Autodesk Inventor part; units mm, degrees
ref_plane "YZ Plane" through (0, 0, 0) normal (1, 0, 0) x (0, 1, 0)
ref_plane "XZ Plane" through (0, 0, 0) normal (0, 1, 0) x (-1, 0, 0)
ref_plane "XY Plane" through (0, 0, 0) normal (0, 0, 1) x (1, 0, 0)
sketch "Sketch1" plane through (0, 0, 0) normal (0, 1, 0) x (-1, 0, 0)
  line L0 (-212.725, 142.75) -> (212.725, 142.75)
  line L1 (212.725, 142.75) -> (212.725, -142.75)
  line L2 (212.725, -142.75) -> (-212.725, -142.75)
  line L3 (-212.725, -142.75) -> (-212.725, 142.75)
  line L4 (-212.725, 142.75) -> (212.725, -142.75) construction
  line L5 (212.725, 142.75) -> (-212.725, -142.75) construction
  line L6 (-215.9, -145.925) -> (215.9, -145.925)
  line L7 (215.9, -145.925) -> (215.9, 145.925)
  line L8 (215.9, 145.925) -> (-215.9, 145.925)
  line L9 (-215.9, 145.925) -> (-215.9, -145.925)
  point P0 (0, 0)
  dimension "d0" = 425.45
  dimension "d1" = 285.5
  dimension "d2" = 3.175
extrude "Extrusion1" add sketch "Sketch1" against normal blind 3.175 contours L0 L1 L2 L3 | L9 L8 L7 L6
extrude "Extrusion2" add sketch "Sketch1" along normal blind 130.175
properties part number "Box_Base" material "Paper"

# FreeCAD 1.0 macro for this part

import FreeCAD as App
import Part
import Sketcher

V = App.Vector
Q = App.Units.Quantity

doc = App.newDocument("Part")
body = doc.addObject("PartDesign::Body", "Body")

sketch1 = doc.addObject("Sketcher::SketchObject", "Sketch")
body.addObject(sketch1)
sketch1.AttachmentSupport = (doc.XZ_Plane, [""])
sketch1.MapMode = "FlatFace"
sketch1.addGeometry(Part.LineSegment(V(216, 146, 0), V(216, -146, 0)), False)
sketch1.addGeometry(Part.LineSegment(V(216, -146, 0), V(-216, -146, 0)), False)
sketch1.addGeometry(Part.LineSegment(V(-216, -146, 0), V(-216, 146, 0)), False)
sketch1.addGeometry(Part.LineSegment(V(-216, 146, 0), V(216, 146, 0)), False)
sketch1.addConstraint(Sketcher.Constraint("Coincident", 0, 2, 1, 1))
sketch1.addConstraint(Sketcher.Constraint("Coincident", 1, 2, 2, 1))
sketch1.addConstraint(Sketcher.Constraint("Coincident", 2, 2, 3, 1))
sketch1.addConstraint(Sketcher.Constraint("Coincident", 3, 2, 0, 1))
sketch1.addConstraint(Sketcher.Constraint("Vertical", 0))
sketch1.addConstraint(Sketcher.Constraint("Horizontal", 1))
sketch1.addConstraint(Sketcher.Constraint("Vertical", 2))
sketch1.addConstraint(Sketcher.Constraint("Horizontal", 3))
sketch1.addConstraint(Sketcher.Constraint("Symmetric", 0, 2, 2, 2, -1, 1))
sketch1.addConstraint(Sketcher.Constraint("DistanceX", 1, 2, 1, 1, Q("17 in")))
sketch1.addConstraint(Sketcher.Constraint("DistanceY", 0, 2, 0, 1, 291.85))
pad1 = doc.addObject("PartDesign::Pad", "Pad")
body.addObject(pad1)
pad1.Profile = sketch1
pad1.Length = Q("0.125 in")

sketch2 = doc.addObject("Sketcher::SketchObject", "Sketch001")
body.addObject(sketch2)
sketch2.AttachmentSupport = (doc.XZ_Plane, [""])
sketch2.MapMode = "FlatFace"
sketch2.addGeometry(Part.LineSegment(V(216, 146, 0), V(216, -146, 0)), False)
sketch2.addGeometry(Part.LineSegment(V(216, -146, 0), V(-216, -146, 0)), False)
sketch2.addGeometry(Part.LineSegment(V(-216, -146, 0), V(-216, 146, 0)), False)
sketch2.addGeometry(Part.LineSegment(V(-216, 146, 0), V(216, 146, 0)), False)
sketch2.addGeometry(Part.LineSegment(V(213, -143, 0), V(213, 143, 0)), False)
sketch2.addGeometry(Part.LineSegment(V(213, 143, 0), V(-213, 143, 0)), False)
sketch2.addGeometry(Part.LineSegment(V(-213, 143, 0), V(-213, -143, 0)), False)
sketch2.addGeometry(Part.LineSegment(V(-213, -143, 0), V(213, -143, 0)), False)
sketch2.addConstraint(Sketcher.Constraint("Coincident", 0, 2, 1, 1))
sketch2.addConstraint(Sketcher.Constraint("Coincident", 1, 2, 2, 1))
sketch2.addConstraint(Sketcher.Constraint("Coincident", 2, 2, 3, 1))
sketch2.addConstraint(Sketcher.Constraint("Coincident", 3, 2, 0, 1))
sketch2.addConstraint(Sketcher.Constraint("Coincident", 4, 2, 5, 1))
sketch2.addConstraint(Sketcher.Constraint("Coincident", 5, 2, 6, 1))
sketch2.addConstraint(Sketcher.Constraint("Coincident", 6, 2, 7, 1))
sketch2.addConstraint(Sketcher.Constraint("Coincident", 7, 2, 4, 1))
sketch2.addConstraint(Sketcher.Constraint("Vertical", 0))
sketch2.addConstraint(Sketcher.Constraint("Horizontal", 1))
sketch2.addConstraint(Sketcher.Constraint("Vertical", 2))
sketch2.addConstraint(Sketcher.Constraint("Horizontal", 3))
sketch2.addConstraint(Sketcher.Constraint("Vertical", 4))
sketch2.addConstraint(Sketcher.Constraint("Horizontal", 5))
sketch2.addConstraint(Sketcher.Constraint("Vertical", 6))
sketch2.addConstraint(Sketcher.Constraint("Horizontal", 7))
sketch2.addConstraint(Sketcher.Constraint("Symmetric", 0, 2, 2, 2, -1, 1))
sketch2.addConstraint(Sketcher.Constraint("Symmetric", 4, 2, 6, 2, -1, 1))
sketch2.addConstraint(Sketcher.Constraint("DistanceX", 5, 2, 5, 1, Q("16.75 in")))
sketch2.addConstraint(Sketcher.Constraint("DistanceX", 1, 2, 1, 1, Q("17 in")))
sketch2.addConstraint(Sketcher.Constraint("DistanceY", 4, 2, 3, 2, Q("0.125 in")))
sketch2.addConstraint(Sketcher.Constraint("DistanceY", 4, 1, 4, 2, 285.5))
pad2 = doc.addObject("PartDesign::Pad", "Pad001")
body.addObject(pad2)
pad2.Profile = sketch2
pad2.Length = Q("5.125 in")
pad2.Reversed = True

doc.recompute()
